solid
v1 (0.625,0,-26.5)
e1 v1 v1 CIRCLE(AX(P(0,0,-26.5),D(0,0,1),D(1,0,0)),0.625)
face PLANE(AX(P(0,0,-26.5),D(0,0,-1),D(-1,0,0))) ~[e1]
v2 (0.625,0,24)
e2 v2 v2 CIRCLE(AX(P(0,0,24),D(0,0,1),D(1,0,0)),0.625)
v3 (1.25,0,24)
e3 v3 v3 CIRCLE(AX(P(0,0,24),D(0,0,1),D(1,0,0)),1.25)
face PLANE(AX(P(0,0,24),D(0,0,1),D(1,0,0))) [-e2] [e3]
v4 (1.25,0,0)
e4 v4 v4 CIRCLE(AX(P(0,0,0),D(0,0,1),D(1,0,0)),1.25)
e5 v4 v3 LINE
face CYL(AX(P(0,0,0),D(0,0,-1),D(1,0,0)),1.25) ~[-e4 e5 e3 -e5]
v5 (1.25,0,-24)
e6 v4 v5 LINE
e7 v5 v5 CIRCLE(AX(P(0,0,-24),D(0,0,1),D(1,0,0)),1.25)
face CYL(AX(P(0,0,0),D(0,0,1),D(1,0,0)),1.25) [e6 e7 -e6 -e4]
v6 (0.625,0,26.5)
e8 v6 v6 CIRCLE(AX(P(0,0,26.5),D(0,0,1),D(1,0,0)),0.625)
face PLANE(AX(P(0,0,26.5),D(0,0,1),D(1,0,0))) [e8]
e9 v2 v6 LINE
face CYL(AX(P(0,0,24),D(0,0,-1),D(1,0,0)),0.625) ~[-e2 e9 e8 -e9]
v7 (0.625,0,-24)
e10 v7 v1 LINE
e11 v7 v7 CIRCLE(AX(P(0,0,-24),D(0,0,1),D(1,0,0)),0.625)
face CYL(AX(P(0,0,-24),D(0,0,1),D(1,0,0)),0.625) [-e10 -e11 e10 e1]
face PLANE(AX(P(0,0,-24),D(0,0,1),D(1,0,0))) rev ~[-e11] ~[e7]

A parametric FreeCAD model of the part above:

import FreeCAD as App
import Part
import Sketcher
from FreeCAD import Vector

doc = App.newDocument("Part")
body = doc.addObject("PartDesign::Body", "Body")

# Sketch on XY plane
sketch1 = doc.addObject("Sketcher::SketchObject", "Sketch")
body.addObject(sketch1)
sketch1.AttachmentSupport = (doc.XY_Plane, [""])
sketch1.MapMode = "FlatFace"
sketch1.addGeometry(Part.Circle(Vector(0, 0, 0), Vector(0, 0, 1), 1.2), False)
sketch1.addConstraint(Sketcher.Constraint("Coincident", 0, 3, -1, 1))
sketch1.addConstraint(Sketcher.Constraint("Diameter", 0, 2.5))
pad1 = doc.addObject("PartDesign::Pad", "Pad")
body.addObject(pad1)
pad1.Profile = sketch1
pad1.Length = 48
pad1.Midplane = True

# Sketch on XY plane
sketch2 = doc.addObject("Sketcher::SketchObject", "Sketch001")
body.addObject(sketch2)
sketch2.AttachmentSupport = (doc.XY_Plane, [""])
sketch2.MapMode = "FlatFace"
sketch2.AttachmentOffset = App.Placement(Vector(0, 0, 24), App.Rotation())
sketch2.addGeometry(Part.Circle(Vector(0, 0, 0), Vector(0, 0, 1), 0.6), False)
sketch2.addConstraint(Sketcher.Constraint("Coincident", 0, 3, -1, 1))
sketch2.addConstraint(Sketcher.Constraint("Diameter", 0, 1.25))
pad2 = doc.addObject("PartDesign::Pad", "Pad001")
body.addObject(pad2)
pad2.Profile = sketch2
pad2.Length = 2.5
doc.recompute()

mirrored = doc.addObject("PartDesign::Mirrored", "Mirrored")
body.addObject(mirrored)
mirrored.Originals = [pad2]
mirrored.MirrorPlane = (doc.XY_Plane, [""])
body.Tip = mirrored

doc.recompute()
